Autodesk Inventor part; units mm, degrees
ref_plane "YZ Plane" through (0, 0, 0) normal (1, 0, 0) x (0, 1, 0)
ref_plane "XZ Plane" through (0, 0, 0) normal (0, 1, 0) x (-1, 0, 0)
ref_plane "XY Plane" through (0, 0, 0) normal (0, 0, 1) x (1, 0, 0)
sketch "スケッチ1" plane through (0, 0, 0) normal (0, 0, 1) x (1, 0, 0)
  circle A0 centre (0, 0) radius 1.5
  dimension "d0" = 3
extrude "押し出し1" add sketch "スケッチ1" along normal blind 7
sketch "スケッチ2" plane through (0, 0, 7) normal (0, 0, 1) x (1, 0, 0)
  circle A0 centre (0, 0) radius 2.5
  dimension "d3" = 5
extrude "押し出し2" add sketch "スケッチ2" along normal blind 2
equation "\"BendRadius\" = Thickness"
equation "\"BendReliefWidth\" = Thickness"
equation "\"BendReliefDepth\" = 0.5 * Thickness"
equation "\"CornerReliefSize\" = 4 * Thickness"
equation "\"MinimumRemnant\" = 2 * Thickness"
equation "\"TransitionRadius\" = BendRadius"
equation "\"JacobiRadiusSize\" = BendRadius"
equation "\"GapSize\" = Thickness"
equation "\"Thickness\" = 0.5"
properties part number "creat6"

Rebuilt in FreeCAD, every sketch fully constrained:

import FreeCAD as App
import Part
import Sketcher

doc = App.newDocument("Part")
body = doc.addObject("PartDesign::Body", "Body")

sketch1 = body.newObject("Sketcher::SketchObject", "Sketch")
sketch1.AttachmentSupport = (doc.getObject("XY_Plane"), [""])
sketch1.MapMode = "FlatFace"
sketch1.addGeometry(Part.Circle(App.Vector(0, 0, 0), App.Vector(0, 0, 1), 1.5), False)
sketch1.addConstraint(Sketcher.Constraint("Coincident", 0, 3, -1, 1))
sketch1.addConstraint(Sketcher.Constraint("Diameter", 0, 3.0))
pad1 = body.newObject("PartDesign::Pad", "Pad")
pad1.Profile = sketch1
pad1.Length = 7

sketch2 = body.newObject("Sketcher::SketchObject", "Sketch001")
sketch2.AttachmentSupport = (doc.getObject("XY_Plane"), [""])
sketch2.MapMode = "FlatFace"
sketch2.AttachmentOffset = App.Placement(App.Vector(0, 0, 7), App.Rotation())
sketch2.addGeometry(Part.Circle(App.Vector(0, 0, 0), App.Vector(0, 0, 1), 2.5), False)
sketch2.addConstraint(Sketcher.Constraint("Coincident", 0, 3, -1, 1))
sketch2.addConstraint(Sketcher.Constraint("Diameter", 0, 5.0))
pad2 = body.newObject("PartDesign::Pad", "Pad001")
pad2.Profile = sketch2
pad2.Length = 2

doc.recompute()
